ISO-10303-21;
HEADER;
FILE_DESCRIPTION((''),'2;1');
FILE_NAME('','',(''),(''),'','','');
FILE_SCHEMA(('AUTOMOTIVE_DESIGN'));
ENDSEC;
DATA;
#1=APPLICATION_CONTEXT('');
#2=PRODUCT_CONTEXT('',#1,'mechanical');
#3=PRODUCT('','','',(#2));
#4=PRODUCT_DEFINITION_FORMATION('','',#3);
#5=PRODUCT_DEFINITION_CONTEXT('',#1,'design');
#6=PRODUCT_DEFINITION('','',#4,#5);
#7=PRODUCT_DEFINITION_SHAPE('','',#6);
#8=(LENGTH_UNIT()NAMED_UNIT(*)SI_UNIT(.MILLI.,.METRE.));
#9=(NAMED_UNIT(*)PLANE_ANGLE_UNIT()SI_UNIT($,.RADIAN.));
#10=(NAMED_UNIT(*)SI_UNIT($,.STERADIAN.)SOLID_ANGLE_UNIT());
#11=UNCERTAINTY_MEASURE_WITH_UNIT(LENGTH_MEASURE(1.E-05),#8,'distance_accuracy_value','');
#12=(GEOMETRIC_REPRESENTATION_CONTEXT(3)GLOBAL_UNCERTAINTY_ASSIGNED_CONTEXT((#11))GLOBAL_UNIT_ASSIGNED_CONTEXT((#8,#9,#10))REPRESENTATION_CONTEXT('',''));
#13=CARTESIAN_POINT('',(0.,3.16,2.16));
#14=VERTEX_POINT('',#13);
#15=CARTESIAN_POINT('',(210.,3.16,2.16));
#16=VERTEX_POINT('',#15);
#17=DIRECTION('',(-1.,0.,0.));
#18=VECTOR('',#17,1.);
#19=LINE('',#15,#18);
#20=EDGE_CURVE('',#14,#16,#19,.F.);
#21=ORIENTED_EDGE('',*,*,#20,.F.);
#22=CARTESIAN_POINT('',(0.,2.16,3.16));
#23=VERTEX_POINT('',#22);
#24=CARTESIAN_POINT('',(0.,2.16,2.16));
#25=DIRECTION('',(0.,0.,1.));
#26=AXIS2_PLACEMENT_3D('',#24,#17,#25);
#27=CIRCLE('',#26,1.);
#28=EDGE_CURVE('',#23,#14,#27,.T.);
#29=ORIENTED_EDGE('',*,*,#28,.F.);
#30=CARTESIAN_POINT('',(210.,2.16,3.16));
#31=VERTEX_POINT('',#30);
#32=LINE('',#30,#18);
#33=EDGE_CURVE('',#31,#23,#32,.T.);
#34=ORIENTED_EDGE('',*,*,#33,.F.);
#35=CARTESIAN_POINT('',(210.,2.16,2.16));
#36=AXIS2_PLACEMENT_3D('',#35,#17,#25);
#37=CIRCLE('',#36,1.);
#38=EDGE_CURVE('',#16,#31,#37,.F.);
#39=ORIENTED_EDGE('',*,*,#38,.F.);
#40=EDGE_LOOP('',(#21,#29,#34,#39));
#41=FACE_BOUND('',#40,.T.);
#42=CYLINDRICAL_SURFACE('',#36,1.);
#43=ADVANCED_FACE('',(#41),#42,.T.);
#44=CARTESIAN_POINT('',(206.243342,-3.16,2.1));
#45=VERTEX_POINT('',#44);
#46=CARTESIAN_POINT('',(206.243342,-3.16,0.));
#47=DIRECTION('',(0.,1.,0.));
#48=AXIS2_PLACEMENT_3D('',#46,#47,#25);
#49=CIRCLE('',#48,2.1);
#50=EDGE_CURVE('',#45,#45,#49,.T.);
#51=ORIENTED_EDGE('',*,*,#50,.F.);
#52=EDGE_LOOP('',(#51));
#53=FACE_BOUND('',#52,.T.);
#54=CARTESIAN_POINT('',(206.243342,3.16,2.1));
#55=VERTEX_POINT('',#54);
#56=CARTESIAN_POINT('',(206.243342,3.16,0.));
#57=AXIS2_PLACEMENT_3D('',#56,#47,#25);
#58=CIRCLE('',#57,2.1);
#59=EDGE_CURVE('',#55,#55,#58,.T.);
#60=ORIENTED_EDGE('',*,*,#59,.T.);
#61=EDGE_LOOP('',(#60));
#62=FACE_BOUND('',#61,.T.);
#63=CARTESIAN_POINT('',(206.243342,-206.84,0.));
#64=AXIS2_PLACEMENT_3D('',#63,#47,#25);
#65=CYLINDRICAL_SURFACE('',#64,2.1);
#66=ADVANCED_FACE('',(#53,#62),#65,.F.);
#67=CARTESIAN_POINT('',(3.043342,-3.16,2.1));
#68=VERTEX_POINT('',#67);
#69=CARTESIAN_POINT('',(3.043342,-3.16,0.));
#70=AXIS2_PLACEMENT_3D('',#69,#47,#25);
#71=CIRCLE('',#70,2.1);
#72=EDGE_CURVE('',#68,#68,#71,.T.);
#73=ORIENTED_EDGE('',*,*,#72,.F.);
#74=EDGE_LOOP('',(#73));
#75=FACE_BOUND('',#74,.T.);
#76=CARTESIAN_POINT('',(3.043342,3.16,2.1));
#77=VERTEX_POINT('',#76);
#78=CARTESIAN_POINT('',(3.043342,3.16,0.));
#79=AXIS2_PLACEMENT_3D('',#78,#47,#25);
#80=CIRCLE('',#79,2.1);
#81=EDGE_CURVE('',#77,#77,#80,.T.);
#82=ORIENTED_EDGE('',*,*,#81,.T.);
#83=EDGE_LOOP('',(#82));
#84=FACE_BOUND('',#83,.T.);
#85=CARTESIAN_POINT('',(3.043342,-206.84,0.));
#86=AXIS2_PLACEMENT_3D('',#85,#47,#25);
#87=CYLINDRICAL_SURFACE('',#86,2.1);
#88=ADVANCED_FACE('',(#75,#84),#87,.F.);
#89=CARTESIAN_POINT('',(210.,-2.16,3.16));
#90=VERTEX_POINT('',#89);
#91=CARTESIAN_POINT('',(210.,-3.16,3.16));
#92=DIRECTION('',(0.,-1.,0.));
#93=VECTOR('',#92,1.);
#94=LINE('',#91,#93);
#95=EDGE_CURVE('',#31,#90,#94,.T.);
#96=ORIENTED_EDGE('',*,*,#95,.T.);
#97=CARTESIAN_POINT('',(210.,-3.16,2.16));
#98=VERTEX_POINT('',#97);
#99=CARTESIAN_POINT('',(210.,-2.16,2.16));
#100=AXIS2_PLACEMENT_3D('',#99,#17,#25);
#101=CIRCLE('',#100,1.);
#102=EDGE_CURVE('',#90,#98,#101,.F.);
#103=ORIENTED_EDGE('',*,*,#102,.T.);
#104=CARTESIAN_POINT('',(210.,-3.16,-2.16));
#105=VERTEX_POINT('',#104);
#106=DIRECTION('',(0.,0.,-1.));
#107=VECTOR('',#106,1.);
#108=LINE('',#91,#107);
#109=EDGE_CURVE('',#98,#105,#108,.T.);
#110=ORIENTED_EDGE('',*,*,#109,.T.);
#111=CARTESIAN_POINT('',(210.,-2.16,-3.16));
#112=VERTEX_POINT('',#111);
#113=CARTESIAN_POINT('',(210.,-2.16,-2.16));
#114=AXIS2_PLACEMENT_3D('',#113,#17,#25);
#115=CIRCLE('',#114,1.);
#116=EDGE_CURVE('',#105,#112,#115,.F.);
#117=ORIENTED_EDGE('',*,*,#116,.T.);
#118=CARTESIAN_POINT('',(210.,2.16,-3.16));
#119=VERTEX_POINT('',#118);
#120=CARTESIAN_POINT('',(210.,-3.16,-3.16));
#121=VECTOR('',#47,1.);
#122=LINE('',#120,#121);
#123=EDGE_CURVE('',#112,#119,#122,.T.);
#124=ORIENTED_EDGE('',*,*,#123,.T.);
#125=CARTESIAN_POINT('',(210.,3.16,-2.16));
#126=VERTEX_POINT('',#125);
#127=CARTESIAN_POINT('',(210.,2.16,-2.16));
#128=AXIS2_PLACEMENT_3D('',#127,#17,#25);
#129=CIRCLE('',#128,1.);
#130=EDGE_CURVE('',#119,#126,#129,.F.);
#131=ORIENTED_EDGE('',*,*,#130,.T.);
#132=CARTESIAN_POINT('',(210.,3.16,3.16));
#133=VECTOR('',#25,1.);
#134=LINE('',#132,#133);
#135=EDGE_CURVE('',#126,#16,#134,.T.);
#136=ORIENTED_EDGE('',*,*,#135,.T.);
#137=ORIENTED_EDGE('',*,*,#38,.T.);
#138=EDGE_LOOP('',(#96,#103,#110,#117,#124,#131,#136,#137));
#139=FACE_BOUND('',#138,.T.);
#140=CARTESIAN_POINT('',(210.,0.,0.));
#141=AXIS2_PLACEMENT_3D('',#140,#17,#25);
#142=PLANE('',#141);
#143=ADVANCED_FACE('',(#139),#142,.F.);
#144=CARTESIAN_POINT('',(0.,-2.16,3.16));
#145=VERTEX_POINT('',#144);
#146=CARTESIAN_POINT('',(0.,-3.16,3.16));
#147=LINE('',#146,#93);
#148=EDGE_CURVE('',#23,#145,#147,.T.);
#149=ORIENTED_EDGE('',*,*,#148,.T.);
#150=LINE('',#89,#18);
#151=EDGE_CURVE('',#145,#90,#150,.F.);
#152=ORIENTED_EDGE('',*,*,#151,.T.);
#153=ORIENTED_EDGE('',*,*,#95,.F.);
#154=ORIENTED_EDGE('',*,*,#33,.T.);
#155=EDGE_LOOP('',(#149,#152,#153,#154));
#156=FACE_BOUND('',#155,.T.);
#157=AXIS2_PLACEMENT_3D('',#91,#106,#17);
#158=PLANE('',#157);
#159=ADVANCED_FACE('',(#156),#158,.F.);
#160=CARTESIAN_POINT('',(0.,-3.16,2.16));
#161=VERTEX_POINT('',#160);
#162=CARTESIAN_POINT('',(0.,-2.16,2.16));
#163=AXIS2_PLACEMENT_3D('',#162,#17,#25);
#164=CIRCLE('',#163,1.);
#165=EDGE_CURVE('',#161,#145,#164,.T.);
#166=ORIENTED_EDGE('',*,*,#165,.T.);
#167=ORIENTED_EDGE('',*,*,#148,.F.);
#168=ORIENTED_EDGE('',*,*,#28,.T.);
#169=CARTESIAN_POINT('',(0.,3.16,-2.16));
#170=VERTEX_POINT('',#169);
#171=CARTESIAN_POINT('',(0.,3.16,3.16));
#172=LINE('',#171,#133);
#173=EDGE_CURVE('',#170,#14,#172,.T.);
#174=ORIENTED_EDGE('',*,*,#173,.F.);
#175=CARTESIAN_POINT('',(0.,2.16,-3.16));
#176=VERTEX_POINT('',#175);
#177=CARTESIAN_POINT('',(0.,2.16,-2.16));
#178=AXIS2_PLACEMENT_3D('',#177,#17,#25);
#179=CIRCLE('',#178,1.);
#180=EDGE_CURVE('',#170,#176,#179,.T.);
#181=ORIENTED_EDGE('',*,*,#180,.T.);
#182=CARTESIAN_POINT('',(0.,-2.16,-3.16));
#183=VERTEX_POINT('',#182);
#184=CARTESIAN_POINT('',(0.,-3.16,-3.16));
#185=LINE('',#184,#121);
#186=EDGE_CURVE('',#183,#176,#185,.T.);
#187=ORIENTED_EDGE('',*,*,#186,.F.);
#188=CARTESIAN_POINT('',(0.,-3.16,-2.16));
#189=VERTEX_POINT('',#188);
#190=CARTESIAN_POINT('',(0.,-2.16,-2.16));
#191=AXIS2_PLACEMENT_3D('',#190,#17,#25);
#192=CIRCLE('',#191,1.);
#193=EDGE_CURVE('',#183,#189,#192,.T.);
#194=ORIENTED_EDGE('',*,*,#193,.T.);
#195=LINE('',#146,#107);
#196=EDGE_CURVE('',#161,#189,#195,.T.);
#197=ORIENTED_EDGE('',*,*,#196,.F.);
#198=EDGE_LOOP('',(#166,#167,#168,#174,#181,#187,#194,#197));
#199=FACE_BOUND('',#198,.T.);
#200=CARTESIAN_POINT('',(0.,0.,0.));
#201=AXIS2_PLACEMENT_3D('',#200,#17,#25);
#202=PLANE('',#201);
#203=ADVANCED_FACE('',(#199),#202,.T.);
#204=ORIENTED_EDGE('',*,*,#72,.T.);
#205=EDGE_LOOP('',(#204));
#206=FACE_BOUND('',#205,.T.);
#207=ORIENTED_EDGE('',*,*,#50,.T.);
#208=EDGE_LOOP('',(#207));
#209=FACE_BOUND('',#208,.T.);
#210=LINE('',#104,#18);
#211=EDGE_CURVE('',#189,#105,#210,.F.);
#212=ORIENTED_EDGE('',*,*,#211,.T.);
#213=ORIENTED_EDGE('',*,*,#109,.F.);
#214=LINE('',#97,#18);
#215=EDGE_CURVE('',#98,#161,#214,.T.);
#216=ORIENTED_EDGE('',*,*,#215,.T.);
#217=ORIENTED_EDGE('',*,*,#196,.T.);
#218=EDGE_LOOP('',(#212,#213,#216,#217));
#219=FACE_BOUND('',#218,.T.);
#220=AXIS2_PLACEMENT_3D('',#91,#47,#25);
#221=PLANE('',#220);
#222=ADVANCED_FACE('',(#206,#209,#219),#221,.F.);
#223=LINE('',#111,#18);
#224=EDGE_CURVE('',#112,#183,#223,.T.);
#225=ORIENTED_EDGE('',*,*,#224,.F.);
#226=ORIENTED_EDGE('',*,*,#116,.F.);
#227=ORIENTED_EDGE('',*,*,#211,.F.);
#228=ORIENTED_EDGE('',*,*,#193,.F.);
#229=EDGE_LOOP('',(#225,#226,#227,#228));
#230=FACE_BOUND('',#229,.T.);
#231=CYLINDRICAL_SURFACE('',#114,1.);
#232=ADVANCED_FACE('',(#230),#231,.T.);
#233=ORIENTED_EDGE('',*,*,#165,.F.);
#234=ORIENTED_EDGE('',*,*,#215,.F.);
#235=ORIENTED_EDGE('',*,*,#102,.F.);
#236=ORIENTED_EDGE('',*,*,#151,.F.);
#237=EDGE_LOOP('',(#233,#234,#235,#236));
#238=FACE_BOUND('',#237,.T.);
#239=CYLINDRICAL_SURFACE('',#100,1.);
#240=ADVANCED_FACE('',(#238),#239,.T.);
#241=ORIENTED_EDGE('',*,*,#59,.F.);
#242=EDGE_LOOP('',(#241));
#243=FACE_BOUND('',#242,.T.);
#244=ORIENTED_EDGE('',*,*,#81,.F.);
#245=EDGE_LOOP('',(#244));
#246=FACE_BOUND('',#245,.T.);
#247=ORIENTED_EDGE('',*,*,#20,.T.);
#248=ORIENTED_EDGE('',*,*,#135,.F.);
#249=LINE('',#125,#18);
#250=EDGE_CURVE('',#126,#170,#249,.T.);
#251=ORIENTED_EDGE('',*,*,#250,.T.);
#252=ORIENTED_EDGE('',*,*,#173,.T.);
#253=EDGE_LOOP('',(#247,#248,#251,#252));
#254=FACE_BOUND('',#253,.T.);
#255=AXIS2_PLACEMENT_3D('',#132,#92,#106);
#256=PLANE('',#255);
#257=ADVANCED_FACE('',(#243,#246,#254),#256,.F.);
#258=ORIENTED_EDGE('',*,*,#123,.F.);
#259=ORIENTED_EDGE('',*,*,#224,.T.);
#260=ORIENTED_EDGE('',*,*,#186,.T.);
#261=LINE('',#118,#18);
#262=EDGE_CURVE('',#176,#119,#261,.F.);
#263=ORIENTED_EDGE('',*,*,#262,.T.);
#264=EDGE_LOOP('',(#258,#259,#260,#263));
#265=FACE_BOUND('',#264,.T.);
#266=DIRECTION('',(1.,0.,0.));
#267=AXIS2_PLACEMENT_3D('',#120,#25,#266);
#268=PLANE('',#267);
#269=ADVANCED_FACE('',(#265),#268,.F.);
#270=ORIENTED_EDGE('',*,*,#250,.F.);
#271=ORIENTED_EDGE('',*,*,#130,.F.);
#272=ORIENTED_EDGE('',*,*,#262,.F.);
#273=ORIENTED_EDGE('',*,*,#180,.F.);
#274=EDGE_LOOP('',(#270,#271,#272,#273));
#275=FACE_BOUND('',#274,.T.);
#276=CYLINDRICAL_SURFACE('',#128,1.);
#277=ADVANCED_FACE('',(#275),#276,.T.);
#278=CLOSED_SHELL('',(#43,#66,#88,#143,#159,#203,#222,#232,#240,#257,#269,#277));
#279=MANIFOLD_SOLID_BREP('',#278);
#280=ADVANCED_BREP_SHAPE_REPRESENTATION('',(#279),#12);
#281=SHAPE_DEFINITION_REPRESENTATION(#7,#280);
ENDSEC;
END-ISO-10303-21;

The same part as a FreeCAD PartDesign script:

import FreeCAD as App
import Part
import Sketcher
Q = App.Units.Quantity


def edges_at(feature, points):
    """Names of the edges that pass closest to the given points."""
    edges = feature.Shape.Edges
    near = lambda p: min(range(len(edges)), key=lambda i: edges[i].distToShape(Part.Vertex(*p))[0])
    return sorted({f"Edge{near(p) + 1}" for p in points})


def add_polygon(sketch, points):
    """Adds a closed chain of lines whose ends are joined by coincident constraints."""
    first, n = sketch.GeometryCount, len(points)
    for a, b in zip(points, points[1:] + points[:1]):
        sketch.addGeometry(Part.LineSegment(App.Vector(*a, 0), App.Vector(*b, 0)), False)
    for i in range(n):
        sketch.addConstraint(Sketcher.Constraint("Coincident", first + i, 2, first + (i + 1) % n, 1))

doc = App.newDocument("Part")
body = doc.addObject("PartDesign::Body", "Body")

# Sketch on YZ plane
sketch1 = body.newObject("Sketcher::SketchObject", "Sketch")
sketch1.AttachmentSupport = (doc.getObject("YZ_Plane"), [""])
sketch1.MapMode = "FlatFace"
add_polygon(sketch1, [(3.16, 3.16), (-3.16, 3.16), (-3.16, -3.16), (3.16, -3.16)])  # lines 0-3
sketch1.addConstraint([
    Sketcher.Constraint("Horizontal", 0),
    Sketcher.Constraint("Vertical", 1),
    Sketcher.Constraint("Horizontal", 2),
    Sketcher.Constraint("Vertical", 3),
    Sketcher.Constraint("Symmetric", 0, 2, 2, 2, -1, 1),
    Sketcher.Constraint("Equal", 2, 1),
    Sketcher.Constraint("DistanceX", 0, 2, 0, 1, Q("6.32 mm")),
])
pad1 = body.newObject("PartDesign::Pad", "Pad")
pad1.Profile = sketch1
pad1.Length = 210

# Sketch on XZ plane
sketch2 = body.newObject("Sketcher::SketchObject", "Sketch001")
sketch2.AttachmentSupport = (doc.getObject("XZ_Plane"), [""])
sketch2.MapMode = "FlatFace"
sketch2.AttachmentOffset = App.Placement(App.Vector(0, 0, -3.16), App.Rotation())
sketch2.addGeometry([
    Part.Circle(App.Vector(3.043342, 0, 0), App.Vector(0, 0, 1), 2.1),
    Part.Circle(App.Vector(206.243342, 0, 0), App.Vector(0, 0, 1), 2.1),
], False)
sketch2.addConstraint([
    Sketcher.Constraint("Equal", 0, 1),
    Sketcher.Constraint("PointOnObject", 0, 3, -1),
    Sketcher.Constraint("PointOnObject", 1, 3, -1),
    Sketcher.Constraint("Diameter", 0, Q("4.2 mm")),
    Sketcher.Constraint("DistanceX", 0, 3, 1, 3, Q("203.2 mm")),
    Sketcher.Constraint("DistanceX", -1, 1, 0, 3, Q("3.043342 mm")),
])
pocket1 = body.newObject("PartDesign::Pocket", "Pocket")
pocket1.Profile = sketch2
pocket1.Length = 210
pocket1.Reversed = True
doc.recompute()

fillet = body.newObject("PartDesign::Fillet", "Fillet")
fillet.Base = (pocket1, edges_at(pocket1, [
    (105, -3.16, -3.16),
    (105, -3.16, 3.16),
    (105, 3.16, 3.16),
    (105, 3.16, -3.16),
]))
fillet.Radius = 1

doc.recompute()
